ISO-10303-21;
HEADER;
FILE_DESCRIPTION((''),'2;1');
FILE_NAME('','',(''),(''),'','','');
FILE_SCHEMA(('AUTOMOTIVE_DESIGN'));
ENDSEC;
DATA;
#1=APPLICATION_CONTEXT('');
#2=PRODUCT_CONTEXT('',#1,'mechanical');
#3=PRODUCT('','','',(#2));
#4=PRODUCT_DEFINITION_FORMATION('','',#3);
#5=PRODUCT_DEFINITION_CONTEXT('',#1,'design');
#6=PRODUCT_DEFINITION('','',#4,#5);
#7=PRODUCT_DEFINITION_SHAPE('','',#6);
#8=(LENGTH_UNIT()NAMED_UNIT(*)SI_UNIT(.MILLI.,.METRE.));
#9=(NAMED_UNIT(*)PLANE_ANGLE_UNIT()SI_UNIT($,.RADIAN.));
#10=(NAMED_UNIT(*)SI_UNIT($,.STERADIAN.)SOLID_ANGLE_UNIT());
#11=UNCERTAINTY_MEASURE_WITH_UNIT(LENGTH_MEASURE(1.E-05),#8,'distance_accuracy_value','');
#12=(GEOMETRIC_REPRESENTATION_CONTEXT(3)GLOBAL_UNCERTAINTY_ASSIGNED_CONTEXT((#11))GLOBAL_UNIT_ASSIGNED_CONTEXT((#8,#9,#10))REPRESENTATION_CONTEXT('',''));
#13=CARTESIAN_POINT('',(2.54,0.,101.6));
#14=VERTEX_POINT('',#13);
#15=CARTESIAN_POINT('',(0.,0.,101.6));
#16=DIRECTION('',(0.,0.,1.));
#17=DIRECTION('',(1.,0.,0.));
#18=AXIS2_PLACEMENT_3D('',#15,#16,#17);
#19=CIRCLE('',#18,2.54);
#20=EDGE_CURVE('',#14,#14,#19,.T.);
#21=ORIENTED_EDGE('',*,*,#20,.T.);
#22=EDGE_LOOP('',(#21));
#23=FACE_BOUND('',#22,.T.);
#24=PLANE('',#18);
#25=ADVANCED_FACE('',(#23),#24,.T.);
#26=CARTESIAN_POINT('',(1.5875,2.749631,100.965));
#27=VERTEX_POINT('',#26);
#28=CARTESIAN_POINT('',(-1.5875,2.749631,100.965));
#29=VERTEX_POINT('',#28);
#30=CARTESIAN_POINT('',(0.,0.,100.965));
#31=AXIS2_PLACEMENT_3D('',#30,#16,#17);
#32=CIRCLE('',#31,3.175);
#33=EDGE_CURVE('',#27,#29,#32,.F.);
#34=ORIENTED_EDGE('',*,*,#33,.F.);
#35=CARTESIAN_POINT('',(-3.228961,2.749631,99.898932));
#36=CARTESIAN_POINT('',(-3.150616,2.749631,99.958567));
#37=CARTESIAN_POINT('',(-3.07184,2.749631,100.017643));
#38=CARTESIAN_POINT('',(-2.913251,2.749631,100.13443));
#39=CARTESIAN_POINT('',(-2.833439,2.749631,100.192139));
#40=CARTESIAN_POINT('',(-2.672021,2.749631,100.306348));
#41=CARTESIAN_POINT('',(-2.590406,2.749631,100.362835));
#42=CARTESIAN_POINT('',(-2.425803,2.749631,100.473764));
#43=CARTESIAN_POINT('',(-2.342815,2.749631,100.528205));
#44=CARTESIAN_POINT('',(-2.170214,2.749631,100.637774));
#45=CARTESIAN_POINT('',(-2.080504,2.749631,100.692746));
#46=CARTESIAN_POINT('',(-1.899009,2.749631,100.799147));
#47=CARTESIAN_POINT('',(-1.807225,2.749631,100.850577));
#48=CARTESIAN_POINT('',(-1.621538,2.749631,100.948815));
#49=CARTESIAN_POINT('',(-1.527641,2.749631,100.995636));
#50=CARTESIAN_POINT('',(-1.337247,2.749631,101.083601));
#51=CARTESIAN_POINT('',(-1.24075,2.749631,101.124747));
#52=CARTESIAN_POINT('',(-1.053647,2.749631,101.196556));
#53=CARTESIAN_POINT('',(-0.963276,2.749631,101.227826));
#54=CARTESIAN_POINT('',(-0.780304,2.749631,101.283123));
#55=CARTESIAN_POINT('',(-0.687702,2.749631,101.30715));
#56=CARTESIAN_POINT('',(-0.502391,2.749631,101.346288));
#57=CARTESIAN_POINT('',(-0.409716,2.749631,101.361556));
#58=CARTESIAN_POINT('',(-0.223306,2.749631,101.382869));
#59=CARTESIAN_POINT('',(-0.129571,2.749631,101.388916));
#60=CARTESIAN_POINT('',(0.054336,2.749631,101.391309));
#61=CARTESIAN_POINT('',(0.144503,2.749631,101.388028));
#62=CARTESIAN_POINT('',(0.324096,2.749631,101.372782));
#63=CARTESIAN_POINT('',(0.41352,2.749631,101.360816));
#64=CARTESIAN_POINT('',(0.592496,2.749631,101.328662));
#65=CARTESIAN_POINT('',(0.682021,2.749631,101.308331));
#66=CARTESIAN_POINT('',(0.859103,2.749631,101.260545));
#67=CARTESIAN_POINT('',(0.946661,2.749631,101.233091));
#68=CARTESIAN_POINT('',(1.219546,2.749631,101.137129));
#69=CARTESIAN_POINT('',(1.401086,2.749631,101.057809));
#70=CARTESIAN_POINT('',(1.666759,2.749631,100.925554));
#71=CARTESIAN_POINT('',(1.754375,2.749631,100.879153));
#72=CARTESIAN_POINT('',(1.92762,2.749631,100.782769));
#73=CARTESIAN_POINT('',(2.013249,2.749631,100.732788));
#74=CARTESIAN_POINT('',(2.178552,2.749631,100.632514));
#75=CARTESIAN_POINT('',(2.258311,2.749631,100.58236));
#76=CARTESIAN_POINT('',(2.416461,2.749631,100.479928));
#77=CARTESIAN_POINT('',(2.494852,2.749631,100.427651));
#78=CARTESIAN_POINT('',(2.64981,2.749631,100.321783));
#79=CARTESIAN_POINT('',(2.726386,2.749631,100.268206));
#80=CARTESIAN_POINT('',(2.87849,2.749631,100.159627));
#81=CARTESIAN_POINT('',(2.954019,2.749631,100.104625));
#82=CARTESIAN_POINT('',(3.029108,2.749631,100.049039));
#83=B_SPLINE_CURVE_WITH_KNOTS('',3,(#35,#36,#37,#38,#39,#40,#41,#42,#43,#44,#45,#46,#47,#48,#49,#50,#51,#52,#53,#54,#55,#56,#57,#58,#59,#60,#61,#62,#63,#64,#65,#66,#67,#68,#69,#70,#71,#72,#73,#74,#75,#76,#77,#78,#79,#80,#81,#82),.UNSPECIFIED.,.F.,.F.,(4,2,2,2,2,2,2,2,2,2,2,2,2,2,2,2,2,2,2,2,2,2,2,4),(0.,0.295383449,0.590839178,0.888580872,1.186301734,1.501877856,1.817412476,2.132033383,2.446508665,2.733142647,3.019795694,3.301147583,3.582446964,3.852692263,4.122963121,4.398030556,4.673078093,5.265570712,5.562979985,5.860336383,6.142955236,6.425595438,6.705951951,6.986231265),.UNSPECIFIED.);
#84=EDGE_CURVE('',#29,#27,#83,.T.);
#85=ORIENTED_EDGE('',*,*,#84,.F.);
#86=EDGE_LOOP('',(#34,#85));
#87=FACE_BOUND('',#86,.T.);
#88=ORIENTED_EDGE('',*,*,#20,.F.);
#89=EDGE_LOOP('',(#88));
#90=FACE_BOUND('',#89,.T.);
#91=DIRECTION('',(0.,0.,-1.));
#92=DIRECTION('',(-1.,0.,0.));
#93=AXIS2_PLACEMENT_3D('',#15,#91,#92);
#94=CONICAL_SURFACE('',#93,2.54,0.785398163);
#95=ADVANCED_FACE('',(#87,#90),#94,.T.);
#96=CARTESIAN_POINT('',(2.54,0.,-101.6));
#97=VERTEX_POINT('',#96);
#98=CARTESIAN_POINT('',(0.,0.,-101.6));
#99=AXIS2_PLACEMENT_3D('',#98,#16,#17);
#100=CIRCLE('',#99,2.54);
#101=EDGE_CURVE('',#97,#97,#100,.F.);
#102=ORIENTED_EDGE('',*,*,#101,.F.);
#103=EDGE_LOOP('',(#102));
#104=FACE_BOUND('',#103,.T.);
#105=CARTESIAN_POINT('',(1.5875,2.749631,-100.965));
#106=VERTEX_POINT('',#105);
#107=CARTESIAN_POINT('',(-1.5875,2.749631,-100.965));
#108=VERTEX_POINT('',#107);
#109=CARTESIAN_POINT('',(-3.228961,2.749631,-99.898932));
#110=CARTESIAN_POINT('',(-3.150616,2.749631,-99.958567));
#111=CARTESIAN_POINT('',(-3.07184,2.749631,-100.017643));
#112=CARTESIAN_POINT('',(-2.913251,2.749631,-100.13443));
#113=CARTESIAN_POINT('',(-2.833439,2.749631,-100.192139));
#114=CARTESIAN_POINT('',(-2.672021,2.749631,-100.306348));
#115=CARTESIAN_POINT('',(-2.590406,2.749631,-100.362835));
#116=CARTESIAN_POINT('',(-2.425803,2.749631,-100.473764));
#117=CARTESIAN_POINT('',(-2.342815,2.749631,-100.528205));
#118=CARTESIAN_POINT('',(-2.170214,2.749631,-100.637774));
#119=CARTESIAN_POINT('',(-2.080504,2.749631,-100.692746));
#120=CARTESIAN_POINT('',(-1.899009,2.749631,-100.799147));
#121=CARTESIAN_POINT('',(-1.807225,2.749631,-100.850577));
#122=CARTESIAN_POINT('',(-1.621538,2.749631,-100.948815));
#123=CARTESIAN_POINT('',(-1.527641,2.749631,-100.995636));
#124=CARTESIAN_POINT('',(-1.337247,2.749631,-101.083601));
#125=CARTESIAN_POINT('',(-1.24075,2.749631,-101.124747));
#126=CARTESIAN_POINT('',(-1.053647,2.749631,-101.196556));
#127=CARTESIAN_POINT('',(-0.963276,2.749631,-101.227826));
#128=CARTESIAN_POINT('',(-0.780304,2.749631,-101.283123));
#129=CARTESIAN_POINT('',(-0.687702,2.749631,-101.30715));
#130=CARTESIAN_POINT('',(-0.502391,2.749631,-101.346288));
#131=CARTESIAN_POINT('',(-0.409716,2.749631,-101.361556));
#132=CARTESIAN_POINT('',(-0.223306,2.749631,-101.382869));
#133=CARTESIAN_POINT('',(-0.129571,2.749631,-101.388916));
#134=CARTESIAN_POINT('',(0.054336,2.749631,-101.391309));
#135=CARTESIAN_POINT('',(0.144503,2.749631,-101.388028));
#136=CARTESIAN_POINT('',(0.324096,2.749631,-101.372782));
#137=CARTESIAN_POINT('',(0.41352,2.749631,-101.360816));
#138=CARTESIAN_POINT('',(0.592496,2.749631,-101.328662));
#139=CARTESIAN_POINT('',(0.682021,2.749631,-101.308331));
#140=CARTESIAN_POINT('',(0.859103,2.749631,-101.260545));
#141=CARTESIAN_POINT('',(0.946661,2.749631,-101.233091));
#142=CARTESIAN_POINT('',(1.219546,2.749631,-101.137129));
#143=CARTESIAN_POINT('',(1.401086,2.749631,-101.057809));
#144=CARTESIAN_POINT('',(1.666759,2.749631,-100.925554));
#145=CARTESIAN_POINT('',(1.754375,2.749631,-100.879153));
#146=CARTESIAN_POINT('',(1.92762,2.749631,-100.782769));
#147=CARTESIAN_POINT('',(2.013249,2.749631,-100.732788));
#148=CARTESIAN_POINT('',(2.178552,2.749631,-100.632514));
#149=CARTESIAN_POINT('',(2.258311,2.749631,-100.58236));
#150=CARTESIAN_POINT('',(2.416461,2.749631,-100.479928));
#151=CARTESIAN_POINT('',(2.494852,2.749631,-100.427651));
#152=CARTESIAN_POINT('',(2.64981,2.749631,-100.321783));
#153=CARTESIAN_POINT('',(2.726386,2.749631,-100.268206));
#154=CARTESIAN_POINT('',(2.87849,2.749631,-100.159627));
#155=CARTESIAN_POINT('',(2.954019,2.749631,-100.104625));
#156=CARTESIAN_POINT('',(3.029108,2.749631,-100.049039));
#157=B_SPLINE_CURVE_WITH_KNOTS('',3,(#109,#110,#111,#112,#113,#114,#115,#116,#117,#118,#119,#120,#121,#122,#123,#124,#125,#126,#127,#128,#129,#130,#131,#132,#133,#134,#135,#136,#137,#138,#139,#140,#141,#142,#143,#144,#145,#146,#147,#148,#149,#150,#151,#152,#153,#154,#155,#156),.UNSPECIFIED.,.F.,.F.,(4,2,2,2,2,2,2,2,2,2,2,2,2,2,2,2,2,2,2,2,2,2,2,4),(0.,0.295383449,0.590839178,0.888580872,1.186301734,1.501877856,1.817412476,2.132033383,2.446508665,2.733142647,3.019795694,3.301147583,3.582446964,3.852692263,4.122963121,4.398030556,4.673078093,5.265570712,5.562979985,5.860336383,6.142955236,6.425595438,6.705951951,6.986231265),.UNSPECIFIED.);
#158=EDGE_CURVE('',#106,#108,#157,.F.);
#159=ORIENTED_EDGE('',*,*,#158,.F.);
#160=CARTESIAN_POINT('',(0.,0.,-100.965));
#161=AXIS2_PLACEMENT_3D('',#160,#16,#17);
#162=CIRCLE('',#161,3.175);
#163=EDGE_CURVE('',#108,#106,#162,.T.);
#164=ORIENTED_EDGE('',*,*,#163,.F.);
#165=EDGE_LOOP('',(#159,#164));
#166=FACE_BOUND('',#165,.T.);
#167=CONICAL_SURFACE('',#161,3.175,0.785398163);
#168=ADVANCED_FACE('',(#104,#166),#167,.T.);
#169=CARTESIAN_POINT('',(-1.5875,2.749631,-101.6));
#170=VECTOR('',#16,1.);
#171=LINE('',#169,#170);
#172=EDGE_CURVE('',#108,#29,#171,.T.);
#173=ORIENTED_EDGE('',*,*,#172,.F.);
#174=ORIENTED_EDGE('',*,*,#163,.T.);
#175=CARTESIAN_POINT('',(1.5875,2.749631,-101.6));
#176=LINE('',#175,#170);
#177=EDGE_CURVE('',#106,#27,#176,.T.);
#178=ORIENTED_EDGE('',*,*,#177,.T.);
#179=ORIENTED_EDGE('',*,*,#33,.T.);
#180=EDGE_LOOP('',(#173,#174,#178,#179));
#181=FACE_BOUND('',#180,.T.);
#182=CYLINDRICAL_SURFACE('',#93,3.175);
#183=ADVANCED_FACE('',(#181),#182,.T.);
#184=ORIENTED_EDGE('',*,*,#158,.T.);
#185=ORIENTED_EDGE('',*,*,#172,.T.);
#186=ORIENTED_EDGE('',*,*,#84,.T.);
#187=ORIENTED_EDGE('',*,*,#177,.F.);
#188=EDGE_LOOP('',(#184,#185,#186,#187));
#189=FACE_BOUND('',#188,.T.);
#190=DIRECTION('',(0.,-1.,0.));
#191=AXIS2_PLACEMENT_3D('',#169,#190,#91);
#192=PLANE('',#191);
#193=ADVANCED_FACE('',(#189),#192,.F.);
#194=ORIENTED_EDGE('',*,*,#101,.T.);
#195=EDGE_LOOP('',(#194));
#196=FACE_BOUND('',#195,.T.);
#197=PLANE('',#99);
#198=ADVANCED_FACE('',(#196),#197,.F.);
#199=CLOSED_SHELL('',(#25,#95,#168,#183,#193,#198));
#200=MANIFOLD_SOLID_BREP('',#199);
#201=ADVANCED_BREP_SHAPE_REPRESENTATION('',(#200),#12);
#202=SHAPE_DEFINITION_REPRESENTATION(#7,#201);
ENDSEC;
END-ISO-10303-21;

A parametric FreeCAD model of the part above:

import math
import FreeCAD as App
import Part
import Sketcher
from FreeCAD import Vector
Q = App.Units.Quantity


def edges_at(feature, points):
    """Names of the edges that pass closest to the given points."""
    edges = feature.Shape.Edges
    near = lambda p: min(range(len(edges)), key=lambda i: edges[i].distToShape(Part.Vertex(*p))[0])
    return sorted({f"Edge{near(p) + 1}" for p in points})

doc = App.newDocument("Part")
body = doc.addObject("PartDesign::Body", "Body")

# Sketch on XY plane
sketch1 = body.newObject("Sketcher::SketchObject", "Sketch")
sketch1.AttachmentSupport = (doc.getObject("XY_Plane"), [""])
sketch1.MapMode = "FlatFace"
sketch1.addGeometry(Part.Circle(Vector(0, 0, 0), Vector(0, 0, 1), 3.175), False)
sketch1.addConstraint([
    Sketcher.Constraint("Coincident", 0, 3, -1, 1),
    Sketcher.Constraint("Diameter", 0, Q("0.25 in")),
])
pad1 = body.newObject("PartDesign::Pad", "Pad")
pad1.Profile = sketch1
pad1.Length = Q("8 in")
pad1.Midplane = True
doc.recompute()

chamfer = body.newObject("PartDesign::Chamfer", "Chamfer")
chamfer.Base = (pad1, edges_at(pad1, [(-3.175, 0, -101.6), (-3.175, 0, 101.6)]))
chamfer.Size = Q("0.025 in")

# Sketch on XY plane
sketch2 = body.newObject("Sketcher::SketchObject", "Sketch001")
sketch2.AttachmentSupport = (doc.getObject("XY_Plane"), [""])
sketch2.MapMode = "FlatFace"
sketch2.addGeometry([
    Part.LineSegment(Vector(-1.5875, 2.749631, 0), Vector(1.5875, 2.749631, 0)),
    Part.ArcOfCircle(Part.Circle(Vector(0, 0, 0), Vector(0, 0, 1), 3.175), math.radians(60), math.radians(120)),
], False)
sketch2.addConstraint([
    Sketcher.Constraint("Coincident", 0, 1, 1, 2),
    Sketcher.Constraint("Coincident", 1, 1, 0, 2),
    Sketcher.Constraint("Horizontal", 0),
    Sketcher.Constraint("Coincident", 1, 3, -1, 1),
    Sketcher.Constraint("Radius", 1, Q("0.125 in")),
    Sketcher.Constraint("DistanceX", 0, 1, 0, 2, Q("0.125 in")),
])
pocket1 = body.newObject("PartDesign::Pocket", "Pocket")
pocket1.Profile = sketch2
pocket1.Type = "ThroughAll"
pocket1.Midplane = True

doc.recompute()
